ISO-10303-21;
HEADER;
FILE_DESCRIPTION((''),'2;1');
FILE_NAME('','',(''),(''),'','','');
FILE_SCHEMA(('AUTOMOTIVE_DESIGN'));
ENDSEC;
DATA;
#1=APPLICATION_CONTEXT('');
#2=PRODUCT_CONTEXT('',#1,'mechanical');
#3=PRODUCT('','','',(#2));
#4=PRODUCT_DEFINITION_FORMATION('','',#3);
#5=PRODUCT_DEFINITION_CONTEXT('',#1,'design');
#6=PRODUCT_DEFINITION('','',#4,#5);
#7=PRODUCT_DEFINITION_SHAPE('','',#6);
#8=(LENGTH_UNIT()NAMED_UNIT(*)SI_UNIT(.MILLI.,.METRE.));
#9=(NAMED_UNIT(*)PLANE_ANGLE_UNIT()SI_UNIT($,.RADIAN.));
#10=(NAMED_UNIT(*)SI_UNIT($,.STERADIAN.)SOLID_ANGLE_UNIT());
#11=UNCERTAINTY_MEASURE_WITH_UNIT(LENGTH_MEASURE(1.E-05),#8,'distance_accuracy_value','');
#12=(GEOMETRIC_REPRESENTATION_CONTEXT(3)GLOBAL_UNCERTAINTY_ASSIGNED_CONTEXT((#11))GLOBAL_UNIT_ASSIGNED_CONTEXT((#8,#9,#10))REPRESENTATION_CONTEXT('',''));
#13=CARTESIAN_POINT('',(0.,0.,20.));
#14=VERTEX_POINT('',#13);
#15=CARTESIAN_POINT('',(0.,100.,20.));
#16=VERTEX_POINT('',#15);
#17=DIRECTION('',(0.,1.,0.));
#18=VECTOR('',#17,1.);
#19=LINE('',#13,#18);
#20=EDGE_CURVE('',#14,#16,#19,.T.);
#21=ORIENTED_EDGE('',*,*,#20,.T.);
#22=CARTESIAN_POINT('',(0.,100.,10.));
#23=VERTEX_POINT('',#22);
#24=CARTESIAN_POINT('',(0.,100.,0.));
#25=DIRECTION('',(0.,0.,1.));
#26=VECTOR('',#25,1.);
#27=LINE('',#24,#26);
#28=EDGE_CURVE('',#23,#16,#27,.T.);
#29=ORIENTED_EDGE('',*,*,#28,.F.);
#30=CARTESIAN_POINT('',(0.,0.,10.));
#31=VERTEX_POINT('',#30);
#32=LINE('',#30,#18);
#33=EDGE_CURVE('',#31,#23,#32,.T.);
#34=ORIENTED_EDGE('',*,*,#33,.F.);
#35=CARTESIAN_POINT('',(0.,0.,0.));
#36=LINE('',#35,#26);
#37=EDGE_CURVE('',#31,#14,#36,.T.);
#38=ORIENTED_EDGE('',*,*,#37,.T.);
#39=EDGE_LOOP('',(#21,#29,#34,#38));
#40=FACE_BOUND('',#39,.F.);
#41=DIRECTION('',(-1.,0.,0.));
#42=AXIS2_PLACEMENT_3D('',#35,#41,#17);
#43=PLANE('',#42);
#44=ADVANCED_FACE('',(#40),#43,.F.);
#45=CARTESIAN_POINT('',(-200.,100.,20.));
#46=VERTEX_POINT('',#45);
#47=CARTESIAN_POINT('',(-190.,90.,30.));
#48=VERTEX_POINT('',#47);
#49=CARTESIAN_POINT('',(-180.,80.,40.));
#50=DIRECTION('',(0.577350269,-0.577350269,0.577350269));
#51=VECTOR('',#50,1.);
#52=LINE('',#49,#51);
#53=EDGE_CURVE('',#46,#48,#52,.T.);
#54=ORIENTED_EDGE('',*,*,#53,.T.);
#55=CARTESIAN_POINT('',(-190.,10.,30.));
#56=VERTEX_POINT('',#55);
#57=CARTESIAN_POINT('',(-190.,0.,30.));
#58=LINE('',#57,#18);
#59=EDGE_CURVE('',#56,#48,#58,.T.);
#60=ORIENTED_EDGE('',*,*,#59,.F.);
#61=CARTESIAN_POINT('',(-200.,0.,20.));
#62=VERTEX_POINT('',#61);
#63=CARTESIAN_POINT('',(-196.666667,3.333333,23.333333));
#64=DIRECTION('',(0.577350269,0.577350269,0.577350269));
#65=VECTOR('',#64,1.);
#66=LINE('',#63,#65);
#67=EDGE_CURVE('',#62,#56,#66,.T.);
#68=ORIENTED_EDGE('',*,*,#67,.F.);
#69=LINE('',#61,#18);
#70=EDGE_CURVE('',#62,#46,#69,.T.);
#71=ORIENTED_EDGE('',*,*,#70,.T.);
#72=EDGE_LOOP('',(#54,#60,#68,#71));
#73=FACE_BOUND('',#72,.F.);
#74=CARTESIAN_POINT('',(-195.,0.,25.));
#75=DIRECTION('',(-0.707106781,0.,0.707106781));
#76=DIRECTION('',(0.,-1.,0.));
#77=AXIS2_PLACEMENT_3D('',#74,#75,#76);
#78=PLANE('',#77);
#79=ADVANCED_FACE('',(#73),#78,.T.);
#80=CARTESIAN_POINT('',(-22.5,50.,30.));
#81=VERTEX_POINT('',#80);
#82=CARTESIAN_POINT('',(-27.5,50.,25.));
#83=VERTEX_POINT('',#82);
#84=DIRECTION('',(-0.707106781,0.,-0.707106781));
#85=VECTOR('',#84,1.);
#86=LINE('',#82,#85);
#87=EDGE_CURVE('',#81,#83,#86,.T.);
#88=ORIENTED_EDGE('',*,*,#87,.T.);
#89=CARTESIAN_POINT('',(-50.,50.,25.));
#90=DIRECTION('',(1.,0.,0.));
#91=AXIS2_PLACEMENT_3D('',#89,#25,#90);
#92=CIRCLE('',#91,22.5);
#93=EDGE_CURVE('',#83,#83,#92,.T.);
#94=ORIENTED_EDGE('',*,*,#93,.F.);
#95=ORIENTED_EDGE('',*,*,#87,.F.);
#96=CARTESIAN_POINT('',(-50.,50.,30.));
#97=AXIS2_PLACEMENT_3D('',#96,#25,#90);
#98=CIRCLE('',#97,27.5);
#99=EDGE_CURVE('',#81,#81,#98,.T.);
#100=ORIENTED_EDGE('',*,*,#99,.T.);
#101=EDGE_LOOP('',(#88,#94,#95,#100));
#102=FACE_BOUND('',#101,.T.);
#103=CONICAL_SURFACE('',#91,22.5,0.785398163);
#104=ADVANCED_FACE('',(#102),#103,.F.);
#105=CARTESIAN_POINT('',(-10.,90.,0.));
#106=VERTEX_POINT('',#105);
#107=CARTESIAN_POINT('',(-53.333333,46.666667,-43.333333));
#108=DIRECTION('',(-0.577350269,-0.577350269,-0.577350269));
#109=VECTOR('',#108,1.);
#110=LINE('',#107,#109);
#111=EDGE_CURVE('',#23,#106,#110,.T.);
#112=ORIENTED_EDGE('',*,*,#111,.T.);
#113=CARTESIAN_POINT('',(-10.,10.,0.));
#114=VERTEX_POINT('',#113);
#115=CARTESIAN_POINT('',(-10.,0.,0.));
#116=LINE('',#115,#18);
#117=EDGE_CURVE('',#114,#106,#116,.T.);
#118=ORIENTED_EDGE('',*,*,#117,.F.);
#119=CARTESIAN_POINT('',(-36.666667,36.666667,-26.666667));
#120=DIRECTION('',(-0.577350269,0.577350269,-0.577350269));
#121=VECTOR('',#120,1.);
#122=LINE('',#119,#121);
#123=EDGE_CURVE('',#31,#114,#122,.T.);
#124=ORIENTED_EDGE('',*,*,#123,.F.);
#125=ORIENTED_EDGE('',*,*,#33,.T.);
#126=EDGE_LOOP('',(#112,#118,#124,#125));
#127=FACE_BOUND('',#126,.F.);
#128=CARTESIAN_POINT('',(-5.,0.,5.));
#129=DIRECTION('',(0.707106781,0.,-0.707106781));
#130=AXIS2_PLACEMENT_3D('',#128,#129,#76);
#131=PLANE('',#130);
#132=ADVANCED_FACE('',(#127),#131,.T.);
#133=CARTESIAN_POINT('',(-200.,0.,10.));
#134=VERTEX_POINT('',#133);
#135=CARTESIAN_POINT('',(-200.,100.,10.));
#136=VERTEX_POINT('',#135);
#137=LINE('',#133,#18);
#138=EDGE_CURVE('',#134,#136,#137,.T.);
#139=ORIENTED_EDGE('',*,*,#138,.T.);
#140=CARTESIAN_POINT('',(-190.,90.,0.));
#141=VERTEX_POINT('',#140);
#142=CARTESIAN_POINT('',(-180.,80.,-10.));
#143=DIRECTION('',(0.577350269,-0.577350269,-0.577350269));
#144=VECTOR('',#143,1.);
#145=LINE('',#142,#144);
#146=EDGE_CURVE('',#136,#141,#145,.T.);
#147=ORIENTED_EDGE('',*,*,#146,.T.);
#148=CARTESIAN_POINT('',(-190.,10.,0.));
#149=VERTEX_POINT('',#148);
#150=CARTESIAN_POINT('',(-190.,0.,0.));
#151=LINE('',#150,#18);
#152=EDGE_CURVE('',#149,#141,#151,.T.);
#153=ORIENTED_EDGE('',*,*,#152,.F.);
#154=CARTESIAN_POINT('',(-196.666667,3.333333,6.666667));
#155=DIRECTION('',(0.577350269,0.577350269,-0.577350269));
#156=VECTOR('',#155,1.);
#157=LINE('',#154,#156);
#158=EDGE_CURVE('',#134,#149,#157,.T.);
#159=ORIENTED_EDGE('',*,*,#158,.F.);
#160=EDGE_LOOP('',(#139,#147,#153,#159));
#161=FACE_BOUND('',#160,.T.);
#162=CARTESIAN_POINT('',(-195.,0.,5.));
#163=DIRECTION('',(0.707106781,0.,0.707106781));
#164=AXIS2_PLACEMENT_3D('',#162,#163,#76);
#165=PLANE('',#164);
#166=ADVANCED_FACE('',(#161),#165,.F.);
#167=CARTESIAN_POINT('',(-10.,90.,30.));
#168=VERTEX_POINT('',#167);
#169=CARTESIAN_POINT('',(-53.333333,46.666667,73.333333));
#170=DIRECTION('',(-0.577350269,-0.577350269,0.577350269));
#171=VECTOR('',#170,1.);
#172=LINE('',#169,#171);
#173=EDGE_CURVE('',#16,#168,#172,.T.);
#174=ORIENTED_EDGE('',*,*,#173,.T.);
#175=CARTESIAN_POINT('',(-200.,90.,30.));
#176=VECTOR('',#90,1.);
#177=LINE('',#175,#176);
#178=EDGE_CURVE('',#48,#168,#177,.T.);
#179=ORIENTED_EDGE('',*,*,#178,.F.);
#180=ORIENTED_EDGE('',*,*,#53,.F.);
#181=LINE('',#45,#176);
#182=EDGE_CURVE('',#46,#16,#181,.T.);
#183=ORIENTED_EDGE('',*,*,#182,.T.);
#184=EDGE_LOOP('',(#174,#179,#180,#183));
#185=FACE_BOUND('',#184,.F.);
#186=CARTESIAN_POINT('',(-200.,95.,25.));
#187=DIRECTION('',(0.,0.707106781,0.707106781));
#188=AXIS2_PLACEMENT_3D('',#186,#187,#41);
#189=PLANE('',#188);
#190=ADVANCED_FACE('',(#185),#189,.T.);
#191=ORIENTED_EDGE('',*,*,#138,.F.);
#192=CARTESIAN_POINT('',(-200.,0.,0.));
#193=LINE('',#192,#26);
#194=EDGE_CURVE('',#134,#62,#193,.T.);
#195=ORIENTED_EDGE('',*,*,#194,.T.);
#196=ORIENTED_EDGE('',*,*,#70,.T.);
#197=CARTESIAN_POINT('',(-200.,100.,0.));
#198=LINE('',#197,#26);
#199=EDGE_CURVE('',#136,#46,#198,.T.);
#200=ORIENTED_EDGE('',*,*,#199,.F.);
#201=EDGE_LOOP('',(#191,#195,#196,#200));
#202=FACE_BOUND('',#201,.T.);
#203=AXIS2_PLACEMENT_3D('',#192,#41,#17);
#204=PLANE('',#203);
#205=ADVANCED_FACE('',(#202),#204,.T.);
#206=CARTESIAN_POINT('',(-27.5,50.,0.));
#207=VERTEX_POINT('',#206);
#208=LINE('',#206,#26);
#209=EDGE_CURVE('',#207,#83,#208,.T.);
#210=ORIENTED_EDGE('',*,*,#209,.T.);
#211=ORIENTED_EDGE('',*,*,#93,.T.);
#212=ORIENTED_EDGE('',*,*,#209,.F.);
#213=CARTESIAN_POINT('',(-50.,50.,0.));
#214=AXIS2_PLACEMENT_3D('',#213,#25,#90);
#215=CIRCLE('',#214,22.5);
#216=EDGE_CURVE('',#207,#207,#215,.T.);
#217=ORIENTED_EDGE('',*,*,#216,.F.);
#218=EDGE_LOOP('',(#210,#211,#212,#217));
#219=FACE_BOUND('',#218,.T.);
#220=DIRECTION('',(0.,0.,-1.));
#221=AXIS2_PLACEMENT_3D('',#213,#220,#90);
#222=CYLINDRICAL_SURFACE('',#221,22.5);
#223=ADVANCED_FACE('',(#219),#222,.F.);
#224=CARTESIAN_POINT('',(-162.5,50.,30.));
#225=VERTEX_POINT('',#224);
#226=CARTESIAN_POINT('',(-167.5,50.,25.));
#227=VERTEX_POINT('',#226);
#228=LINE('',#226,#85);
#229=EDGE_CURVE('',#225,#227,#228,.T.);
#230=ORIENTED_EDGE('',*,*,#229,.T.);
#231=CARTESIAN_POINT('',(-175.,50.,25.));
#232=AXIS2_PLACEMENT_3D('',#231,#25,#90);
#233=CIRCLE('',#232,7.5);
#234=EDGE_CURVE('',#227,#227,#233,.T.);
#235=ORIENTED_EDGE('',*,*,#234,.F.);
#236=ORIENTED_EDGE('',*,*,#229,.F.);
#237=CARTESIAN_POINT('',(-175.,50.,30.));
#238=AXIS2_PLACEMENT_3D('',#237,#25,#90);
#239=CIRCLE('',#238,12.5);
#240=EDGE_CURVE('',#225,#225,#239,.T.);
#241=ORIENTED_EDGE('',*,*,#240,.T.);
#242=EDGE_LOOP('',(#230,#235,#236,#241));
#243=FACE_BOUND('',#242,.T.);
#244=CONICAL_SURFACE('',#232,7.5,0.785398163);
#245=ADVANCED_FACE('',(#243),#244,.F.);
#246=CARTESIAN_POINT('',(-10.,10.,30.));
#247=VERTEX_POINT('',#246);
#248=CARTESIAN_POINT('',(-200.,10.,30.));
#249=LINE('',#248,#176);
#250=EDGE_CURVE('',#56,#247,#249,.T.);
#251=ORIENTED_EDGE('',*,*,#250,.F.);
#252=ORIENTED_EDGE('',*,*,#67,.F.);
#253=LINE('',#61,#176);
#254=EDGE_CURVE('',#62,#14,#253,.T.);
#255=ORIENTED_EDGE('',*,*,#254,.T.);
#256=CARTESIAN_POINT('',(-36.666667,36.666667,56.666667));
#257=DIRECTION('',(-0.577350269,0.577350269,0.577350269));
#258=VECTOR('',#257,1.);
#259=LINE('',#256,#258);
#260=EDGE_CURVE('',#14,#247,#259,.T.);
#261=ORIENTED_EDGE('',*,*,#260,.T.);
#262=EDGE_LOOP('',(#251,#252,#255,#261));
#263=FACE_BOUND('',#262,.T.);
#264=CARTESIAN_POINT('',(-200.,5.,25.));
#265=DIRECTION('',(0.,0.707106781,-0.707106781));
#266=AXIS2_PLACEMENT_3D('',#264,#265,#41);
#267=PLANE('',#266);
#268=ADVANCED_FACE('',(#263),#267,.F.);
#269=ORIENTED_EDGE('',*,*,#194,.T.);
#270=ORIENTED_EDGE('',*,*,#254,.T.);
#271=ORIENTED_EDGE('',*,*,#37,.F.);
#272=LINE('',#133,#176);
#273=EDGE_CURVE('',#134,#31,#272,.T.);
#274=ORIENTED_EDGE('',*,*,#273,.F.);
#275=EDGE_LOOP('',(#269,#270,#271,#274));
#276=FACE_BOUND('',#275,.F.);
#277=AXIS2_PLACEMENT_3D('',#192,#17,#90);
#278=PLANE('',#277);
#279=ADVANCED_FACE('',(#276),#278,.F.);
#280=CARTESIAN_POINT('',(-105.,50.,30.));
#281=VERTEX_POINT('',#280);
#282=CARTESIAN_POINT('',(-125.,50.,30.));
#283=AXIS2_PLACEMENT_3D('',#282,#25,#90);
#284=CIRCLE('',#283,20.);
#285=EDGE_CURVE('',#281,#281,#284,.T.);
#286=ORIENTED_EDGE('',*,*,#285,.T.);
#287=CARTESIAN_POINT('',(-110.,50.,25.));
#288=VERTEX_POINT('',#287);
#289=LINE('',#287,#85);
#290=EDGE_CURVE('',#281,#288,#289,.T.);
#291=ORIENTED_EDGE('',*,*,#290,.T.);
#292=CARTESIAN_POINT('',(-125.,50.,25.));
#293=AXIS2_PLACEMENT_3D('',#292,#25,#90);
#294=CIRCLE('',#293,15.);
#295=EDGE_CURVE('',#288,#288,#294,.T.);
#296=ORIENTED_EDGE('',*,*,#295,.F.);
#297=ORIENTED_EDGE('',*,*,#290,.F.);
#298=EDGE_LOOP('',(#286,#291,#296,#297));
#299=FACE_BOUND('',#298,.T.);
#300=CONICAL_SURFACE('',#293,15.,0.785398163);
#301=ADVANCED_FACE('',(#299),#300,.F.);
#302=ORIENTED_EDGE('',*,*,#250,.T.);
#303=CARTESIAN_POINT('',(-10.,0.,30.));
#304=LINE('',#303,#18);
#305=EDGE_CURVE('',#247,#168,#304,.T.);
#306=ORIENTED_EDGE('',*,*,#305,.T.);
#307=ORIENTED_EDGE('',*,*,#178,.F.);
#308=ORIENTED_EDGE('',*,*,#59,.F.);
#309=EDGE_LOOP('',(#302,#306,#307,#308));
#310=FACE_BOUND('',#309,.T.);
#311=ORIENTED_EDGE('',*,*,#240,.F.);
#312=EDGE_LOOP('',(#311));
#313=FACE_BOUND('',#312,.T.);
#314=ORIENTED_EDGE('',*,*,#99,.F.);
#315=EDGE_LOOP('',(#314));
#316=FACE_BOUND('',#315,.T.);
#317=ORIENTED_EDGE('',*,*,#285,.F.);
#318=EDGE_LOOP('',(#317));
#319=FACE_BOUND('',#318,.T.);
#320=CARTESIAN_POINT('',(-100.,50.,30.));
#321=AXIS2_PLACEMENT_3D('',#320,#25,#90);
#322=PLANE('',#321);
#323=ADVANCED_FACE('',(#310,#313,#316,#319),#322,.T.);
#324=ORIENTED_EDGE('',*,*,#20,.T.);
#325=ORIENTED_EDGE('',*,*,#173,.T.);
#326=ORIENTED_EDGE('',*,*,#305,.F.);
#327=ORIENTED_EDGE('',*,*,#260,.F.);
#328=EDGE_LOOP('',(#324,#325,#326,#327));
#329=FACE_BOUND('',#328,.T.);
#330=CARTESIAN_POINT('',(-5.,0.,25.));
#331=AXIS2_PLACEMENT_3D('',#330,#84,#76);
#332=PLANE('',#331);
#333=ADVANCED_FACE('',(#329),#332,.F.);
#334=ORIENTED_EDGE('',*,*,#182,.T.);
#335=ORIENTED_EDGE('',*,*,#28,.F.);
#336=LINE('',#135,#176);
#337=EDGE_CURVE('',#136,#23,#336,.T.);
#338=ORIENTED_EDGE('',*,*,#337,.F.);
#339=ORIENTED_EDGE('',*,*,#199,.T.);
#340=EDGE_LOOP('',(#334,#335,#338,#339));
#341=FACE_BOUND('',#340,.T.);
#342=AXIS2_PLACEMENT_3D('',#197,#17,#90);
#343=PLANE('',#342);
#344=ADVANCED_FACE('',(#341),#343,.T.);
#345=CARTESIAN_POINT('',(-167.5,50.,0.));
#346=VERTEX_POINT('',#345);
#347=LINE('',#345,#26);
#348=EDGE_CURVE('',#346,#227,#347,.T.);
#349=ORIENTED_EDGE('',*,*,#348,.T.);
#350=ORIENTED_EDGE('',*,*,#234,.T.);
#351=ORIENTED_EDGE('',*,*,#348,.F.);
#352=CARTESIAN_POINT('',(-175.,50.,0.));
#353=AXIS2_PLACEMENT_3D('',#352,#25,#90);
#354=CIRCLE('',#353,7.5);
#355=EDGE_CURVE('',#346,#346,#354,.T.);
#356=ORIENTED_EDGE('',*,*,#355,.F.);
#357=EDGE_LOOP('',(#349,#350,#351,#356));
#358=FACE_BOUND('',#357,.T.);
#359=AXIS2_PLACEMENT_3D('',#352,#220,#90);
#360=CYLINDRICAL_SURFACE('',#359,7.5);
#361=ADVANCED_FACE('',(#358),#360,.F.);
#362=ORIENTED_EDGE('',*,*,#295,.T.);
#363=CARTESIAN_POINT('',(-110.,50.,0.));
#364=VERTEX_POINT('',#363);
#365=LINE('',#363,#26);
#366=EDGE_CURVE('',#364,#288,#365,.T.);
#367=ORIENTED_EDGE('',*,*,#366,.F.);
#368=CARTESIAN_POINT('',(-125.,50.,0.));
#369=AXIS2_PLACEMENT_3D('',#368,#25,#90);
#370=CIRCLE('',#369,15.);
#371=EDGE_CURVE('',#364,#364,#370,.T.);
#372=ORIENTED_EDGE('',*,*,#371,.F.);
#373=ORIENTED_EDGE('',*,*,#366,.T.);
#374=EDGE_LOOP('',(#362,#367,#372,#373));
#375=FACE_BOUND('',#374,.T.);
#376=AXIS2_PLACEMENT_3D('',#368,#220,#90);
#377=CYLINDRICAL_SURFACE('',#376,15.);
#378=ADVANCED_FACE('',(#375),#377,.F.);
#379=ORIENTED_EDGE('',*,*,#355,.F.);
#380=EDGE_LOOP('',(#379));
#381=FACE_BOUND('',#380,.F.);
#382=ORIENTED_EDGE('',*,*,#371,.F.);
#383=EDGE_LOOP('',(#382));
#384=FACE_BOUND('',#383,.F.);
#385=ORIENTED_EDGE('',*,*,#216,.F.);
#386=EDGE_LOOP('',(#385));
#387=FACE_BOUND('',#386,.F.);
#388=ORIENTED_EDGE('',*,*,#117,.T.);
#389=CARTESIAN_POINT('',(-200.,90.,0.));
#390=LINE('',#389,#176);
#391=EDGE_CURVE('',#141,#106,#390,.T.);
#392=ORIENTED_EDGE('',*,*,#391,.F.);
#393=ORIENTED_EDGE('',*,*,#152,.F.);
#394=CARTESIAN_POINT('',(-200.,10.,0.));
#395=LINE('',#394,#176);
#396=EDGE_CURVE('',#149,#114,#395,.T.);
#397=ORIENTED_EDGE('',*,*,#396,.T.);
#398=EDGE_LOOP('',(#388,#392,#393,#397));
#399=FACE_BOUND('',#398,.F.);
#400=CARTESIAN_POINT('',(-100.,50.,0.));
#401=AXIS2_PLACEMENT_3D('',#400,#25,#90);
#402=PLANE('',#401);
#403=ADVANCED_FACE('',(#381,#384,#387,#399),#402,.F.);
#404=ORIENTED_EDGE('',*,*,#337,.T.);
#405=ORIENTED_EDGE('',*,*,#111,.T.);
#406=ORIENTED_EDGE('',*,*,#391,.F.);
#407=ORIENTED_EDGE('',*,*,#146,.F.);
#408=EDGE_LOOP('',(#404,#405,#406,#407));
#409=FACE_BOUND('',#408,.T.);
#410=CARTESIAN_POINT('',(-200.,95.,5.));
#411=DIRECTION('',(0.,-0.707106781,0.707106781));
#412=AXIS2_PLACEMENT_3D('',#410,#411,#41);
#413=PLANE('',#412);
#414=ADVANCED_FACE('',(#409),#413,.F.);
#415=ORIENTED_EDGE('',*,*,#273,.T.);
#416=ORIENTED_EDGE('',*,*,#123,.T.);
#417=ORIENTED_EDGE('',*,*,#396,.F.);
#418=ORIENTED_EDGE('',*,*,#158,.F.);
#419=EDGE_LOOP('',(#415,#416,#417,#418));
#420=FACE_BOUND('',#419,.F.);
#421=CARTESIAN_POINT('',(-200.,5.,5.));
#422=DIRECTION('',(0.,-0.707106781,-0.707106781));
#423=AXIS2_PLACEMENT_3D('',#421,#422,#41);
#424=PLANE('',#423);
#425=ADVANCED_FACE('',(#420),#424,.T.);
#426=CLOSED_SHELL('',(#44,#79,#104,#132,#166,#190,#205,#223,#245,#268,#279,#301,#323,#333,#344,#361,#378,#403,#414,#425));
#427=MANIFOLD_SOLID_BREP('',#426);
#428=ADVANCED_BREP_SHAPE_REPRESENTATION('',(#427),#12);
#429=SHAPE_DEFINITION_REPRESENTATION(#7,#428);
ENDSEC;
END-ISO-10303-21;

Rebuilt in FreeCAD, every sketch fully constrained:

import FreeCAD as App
import Part
import Sketcher

V = App.Vector
Q = App.Units.Quantity


def edges_at(feature, points):
    """Names of the edges that pass closest to the given points."""
    edges = feature.Shape.Edges
    near = lambda p: min(range(len(edges)), key=lambda i: edges[i].distToShape(Part.Vertex(*p))[0])
    return sorted({f"Edge{near(p) + 1}" for p in points})

doc = App.newDocument("Part")
body = doc.addObject("PartDesign::Body", "Body")

# Sketch on XY plane
sketch1 = doc.addObject("Sketcher::SketchObject", "Sketch")
body.addObject(sketch1)
sketch1.AttachmentSupport = (doc.XY_Plane, [""])
sketch1.MapMode = "FlatFace"
sketch1.addGeometry([
    Part.LineSegment(V(-200, 100, 0), V(-200, 0, 0)),  # 0
    Part.LineSegment(V(-200, 0, 0), V(0, 0, 0)),  # 1
    Part.LineSegment(V(0, 0, 0), V(0, 100, 0)),  # 2
    Part.LineSegment(V(0, 100, 0), V(-200, 100, 0)),  # 3
    Part.Circle(V(-175, 50, 0), V(0, 0, 1), 8),  # 4
    Part.Circle(V(-125, 50, 0), V(0, 0, 1), 15),  # 5
    Part.Circle(V(-50, 50, 0), V(0, 0, 1), 22),  # 6
], False)
sketch1.addConstraint([
    Sketcher.Constraint("Coincident", 0, 2, 1, 1),
    Sketcher.Constraint("Coincident", 1, 2, 2, 1),
    Sketcher.Constraint("Coincident", 2, 2, 3, 1),
    Sketcher.Constraint("Coincident", 3, 2, 0, 1),
    Sketcher.Constraint("Vertical", 0),
    Sketcher.Constraint("Horizontal", 1),
    Sketcher.Constraint("Vertical", 2),
    Sketcher.Constraint("Horizontal", 3),
    Sketcher.Constraint("Coincident", 1, 2, -1, 1),
    Sketcher.Constraint("Horizontal", 4, 3, 5, 3),
    Sketcher.Constraint("Horizontal", 5, 3, 6, 3),
    Sketcher.Constraint("Diameter", 4, Q("15 mm")),
    Sketcher.Constraint("Diameter", 5, Q("30 mm")),
    Sketcher.Constraint("Diameter", 6, Q("45 mm")),
    Sketcher.Constraint("DistanceX", 1, 1, 1, 2, Q("200 mm")),
    Sketcher.Constraint("DistanceY", 0, 2, 0, 1, Q("100 mm")),
    Sketcher.Constraint("DistanceX", 4, 3, -1, 1, Q("175 mm")),
    Sketcher.Constraint("DistanceY", -1, 1, 4, 3, Q("50 mm")),
    Sketcher.Constraint("DistanceX", 5, 3, -1, 1, Q("125 mm")),
    Sketcher.Constraint("DistanceX", 6, 3, -1, 1, Q("50 mm")),
])
pad1 = doc.addObject("PartDesign::Pad", "Pad")
body.addObject(pad1)
pad1.Profile = sketch1
pad1.Length = 30
doc.recompute()

chamfer = doc.addObject("PartDesign::Chamfer", "Chamfer")
body.addObject(chamfer)
chamfer.Base = (pad1, edges_at(pad1, [
    (-200, 50, 30),
    (-200, 50, 0),
    (-100, 100, 0),
    (-100, 100, 30),
    (-100, 0, 0),
    (-100, 0, 30),
    (0, 50, 30),
    (0, 50, 0),
]))
chamfer.Size = 10
doc.recompute()

chamfer2 = doc.addObject("PartDesign::Chamfer", "Chamfer001")
body.addObject(chamfer2)
chamfer2.Base = (chamfer, edges_at(chamfer, [(-140, 50, 30), (-182.5, 50, 30), (-72.5, 50, 30)]))
chamfer2.Size = 5

doc.recompute()
